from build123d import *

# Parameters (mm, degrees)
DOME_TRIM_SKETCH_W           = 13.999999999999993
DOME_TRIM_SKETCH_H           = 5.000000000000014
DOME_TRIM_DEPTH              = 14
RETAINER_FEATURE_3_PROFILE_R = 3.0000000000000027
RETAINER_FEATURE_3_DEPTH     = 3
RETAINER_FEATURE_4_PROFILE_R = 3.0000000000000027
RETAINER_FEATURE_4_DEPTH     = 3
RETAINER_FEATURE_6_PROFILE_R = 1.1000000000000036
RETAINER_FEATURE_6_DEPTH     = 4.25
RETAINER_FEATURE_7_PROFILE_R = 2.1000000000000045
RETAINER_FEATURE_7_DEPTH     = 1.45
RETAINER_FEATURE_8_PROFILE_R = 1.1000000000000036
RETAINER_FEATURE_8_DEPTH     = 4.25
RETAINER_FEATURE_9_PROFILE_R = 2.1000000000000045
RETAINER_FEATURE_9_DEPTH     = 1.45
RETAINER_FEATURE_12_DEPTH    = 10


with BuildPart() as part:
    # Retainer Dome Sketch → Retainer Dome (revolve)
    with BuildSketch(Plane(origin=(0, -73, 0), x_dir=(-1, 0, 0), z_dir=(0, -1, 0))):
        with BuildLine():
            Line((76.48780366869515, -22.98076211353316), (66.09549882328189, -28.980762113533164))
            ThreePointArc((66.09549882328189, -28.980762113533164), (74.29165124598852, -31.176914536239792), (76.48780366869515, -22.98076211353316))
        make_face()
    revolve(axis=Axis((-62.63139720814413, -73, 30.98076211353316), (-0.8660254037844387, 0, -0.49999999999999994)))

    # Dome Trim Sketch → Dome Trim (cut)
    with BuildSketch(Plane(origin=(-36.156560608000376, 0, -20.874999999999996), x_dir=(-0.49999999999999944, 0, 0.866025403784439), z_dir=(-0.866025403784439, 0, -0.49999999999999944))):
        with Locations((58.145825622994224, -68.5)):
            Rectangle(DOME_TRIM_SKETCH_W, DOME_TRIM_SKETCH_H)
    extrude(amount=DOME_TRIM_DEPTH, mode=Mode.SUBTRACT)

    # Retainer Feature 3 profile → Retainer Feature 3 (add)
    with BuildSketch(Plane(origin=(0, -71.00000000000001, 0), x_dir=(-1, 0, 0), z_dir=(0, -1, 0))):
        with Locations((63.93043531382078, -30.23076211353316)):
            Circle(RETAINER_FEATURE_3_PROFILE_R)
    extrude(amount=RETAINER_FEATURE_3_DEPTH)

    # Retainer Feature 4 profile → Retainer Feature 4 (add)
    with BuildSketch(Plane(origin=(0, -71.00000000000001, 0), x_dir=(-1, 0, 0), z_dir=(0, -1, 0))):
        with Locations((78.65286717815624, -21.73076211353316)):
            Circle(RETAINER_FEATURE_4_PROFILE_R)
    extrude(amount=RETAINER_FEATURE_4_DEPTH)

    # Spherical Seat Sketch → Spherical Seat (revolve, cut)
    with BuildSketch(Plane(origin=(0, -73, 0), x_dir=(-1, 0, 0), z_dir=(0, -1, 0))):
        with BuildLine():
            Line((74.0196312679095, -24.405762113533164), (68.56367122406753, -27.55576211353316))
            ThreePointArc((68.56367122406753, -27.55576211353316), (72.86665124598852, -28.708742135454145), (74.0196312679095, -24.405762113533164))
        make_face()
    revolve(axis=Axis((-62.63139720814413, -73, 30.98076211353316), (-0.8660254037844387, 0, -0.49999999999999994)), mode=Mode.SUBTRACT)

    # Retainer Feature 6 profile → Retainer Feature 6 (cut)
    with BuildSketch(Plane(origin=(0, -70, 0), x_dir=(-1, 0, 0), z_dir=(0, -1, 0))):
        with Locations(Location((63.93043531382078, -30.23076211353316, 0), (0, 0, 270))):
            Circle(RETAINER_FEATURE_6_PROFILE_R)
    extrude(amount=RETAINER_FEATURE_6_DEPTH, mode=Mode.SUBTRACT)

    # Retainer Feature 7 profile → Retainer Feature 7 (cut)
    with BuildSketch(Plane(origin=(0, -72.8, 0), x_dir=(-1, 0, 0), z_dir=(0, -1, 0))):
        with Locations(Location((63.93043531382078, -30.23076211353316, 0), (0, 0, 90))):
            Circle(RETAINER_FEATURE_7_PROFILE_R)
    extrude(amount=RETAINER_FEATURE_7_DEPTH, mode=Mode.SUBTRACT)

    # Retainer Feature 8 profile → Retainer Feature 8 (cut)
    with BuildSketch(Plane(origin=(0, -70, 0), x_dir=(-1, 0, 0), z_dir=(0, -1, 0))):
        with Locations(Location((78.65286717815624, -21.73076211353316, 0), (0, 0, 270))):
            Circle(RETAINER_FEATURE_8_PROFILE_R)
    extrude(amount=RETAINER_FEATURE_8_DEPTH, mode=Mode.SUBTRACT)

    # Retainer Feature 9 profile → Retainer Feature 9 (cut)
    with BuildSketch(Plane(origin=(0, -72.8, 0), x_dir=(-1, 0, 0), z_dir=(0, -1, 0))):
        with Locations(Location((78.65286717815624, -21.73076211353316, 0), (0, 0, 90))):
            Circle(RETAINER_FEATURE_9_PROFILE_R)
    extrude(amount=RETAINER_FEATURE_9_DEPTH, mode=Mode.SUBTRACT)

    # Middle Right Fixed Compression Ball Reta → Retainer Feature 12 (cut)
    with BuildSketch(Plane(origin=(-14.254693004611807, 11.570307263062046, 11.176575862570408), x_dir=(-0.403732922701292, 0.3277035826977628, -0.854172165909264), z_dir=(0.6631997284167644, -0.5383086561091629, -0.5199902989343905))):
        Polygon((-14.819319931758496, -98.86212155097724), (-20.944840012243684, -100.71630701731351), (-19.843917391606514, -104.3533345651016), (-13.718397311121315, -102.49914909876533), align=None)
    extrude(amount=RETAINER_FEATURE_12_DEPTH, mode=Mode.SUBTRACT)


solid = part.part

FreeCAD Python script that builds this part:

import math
import FreeCAD as App
import Part
import Sketcher
from FreeCAD import Vector
Q = App.Units.Quantity


def add_polygon(sketch, points):
    """Adds a closed chain of lines whose ends are joined by coincident constraints."""
    first, n = sketch.GeometryCount, len(points)
    for a, b in zip(points, points[1:] + points[:1]):
        sketch.addGeometry(Part.LineSegment(App.Vector(*a, 0), App.Vector(*b, 0)), False)
    for i in range(n):
        sketch.addConstraint(Sketcher.Constraint("Coincident", first + i, 2, first + (i + 1) % n, 1))

doc = App.newDocument("Part")
body = doc.addObject("PartDesign::Body", "Body")

# Sketch on XZ plane
sketch1 = body.newObject("Sketcher::SketchObject", "Sketch")
sketch1.AttachmentSupport = (doc.getObject("XZ_Plane"), [""])
sketch1.MapMode = "FlatFace"
sketch1.AttachmentOffset = App.Placement(Vector(0, 0, 73), App.Rotation())
sketch1.addGeometry([
    Part.LineSegment(Vector(-76, 23, 0), Vector(-66, 29, 0)),
    Part.ArcOfCircle(Part.Circle(Vector(-71, 26, 0), Vector(0, 0, 1), 6), math.radians(30), math.radians(210)),
], False)
sketch1.addGeometry(Part.LineSegment(Vector(-66, 29, 0), Vector(-76, 23, 0)), True)  # axis
sketch1.addConstraint([
    Sketcher.Constraint("Coincident", 0, 1, 1, 2),
    Sketcher.Constraint("Coincident", 1, 1, 0, 2),
    Sketcher.Constraint("Coincident", 2, 1, 1, 1),
    Sketcher.Constraint("Coincident", 2, 2, 0, 1),
    Sketcher.Constraint("Radius", 1, 6.0),
    Sketcher.Constraint("Angle", 0, Q("30 deg")),
    Sketcher.Constraint("DistanceY", 0, 1, 1, 3, 3.0),
    Sketcher.Constraint("DistanceX", 1, 1, -1, 1, 66.095499),
    Sketcher.Constraint("DistanceY", -1, 1, 1, 3, 25.980762),
])
revolution = body.newObject("PartDesign::Revolution", "Revolution")
revolution.Profile = sketch1
revolution.ReferenceAxis = (sketch1, ["Axis0"])
revolution.Angle = 360

# Sketch on an angled plane
sketch2 = body.newObject("Sketcher::SketchObject", "Sketch001")
sketch2.Placement = App.Placement(Vector(-36.156561, 0, -20.875), App.Rotation(Vector(-0.5, 0, 0.866025404), Vector(0, 1, 0), Vector(-0.866025404, 0, -0.5), "ZXY"))
add_polygon(sketch2, [(51, -66), (51, -71), (65, -71), (65, -66)])  # lines 0-3
sketch2.addConstraint([
    Sketcher.Constraint("Vertical", 0),
    Sketcher.Constraint("Horizontal", 1),
    Sketcher.Constraint("Vertical", 2),
    Sketcher.Constraint("Horizontal", 3),
    Sketcher.Constraint("DistanceX", 1, 1, 1, 2, 14.0),
    Sketcher.Constraint("DistanceY", 0, 2, 0, 1, 5.0),
    Sketcher.Constraint("DistanceY", 0, 2, -1, 1, 71.0),
    Sketcher.Constraint("DistanceX", -1, 1, 0, 2, 51.145826),
])
pocket1 = body.newObject("PartDesign::Pocket", "Pocket")
pocket1.Profile = sketch2
pocket1.Length = 14
pocket1.Reversed = True

# Sketch on XZ plane
sketch3 = body.newObject("Sketcher::SketchObject", "Sketch002")
sketch3.AttachmentSupport = (doc.getObject("XZ_Plane"), [""])
sketch3.MapMode = "FlatFace"
sketch3.AttachmentOffset = App.Placement(Vector(0, 0, 71), App.Rotation())
sketch3.addGeometry(Part.Circle(Vector(-63.9, 30.2, 0), Vector(0, 0, 1), 3), False)
sketch3.addConstraint([
    Sketcher.Constraint("Diameter", 0, 6.0),
    Sketcher.Constraint("DistanceX", 0, 3, -1, 1, 63.930435),
    Sketcher.Constraint("DistanceY", -1, 1, 0, 3, 30.230762),
])
pad1 = body.newObject("PartDesign::Pad", "Pad")
pad1.Profile = sketch3
pad1.Length = 3

# Sketch on XZ plane
sketch4 = body.newObject("Sketcher::SketchObject", "Sketch003")
sketch4.AttachmentSupport = (doc.getObject("XZ_Plane"), [""])
sketch4.MapMode = "FlatFace"
sketch4.AttachmentOffset = App.Placement(Vector(0, 0, 71), App.Rotation())
sketch4.addGeometry(Part.Circle(Vector(-78.7, 21.7, 0), Vector(0, 0, 1), 3), False)
sketch4.addConstraint([
    Sketcher.Constraint("Diameter", 0, 6.0),
    Sketcher.Constraint("DistanceX", 0, 3, -1, 1, 78.652867),
    Sketcher.Constraint("DistanceY", -1, 1, 0, 3, 21.730762),
])
pad2 = body.newObject("PartDesign::Pad", "Pad001")
pad2.Profile = sketch4
pad2.Length = 3

# Sketch on XZ plane
sketch5 = body.newObject("Sketcher::SketchObject", "Sketch004")
sketch5.AttachmentSupport = (doc.getObject("XZ_Plane"), [""])
sketch5.MapMode = "FlatFace"
sketch5.AttachmentOffset = App.Placement(Vector(0, 0, 73), App.Rotation())
sketch5.addGeometry([
    Part.LineSegment(Vector(-74, 24.4, 0), Vector(-68.6, 27.6, 0)),
    Part.ArcOfCircle(Part.Circle(Vector(-71.3, 26, 0), Vector(0, 0, 1), 3.1), math.radians(30), math.radians(210)),
], False)
sketch5.addGeometry(Part.LineSegment(Vector(-68.6, 27.6, 0), Vector(-74, 24.4, 0)), True)  # axis
sketch5.addConstraint([
    Sketcher.Constraint("Coincident", 0, 1, 1, 2),
    Sketcher.Constraint("Coincident", 1, 1, 0, 2),
    Sketcher.Constraint("Coincident", 2, 1, 1, 1),
    Sketcher.Constraint("Coincident", 2, 2, 0, 1),
    Sketcher.Constraint("Angle", 0, Q("30 deg")),
    Sketcher.Constraint("Radius", 1, 3.15),
    Sketcher.Constraint("DistanceY", 0, 1, 1, 3, 1.575),
    Sketcher.Constraint("DistanceX", 1, 3, -1, 1, 71.291651),
    Sketcher.Constraint("DistanceY", -1, 1, 1, 3, 25.980762),
])
groove = body.newObject("PartDesign::Groove", "Groove")
groove.Profile = sketch5
groove.ReferenceAxis = (sketch5, ["Axis0"])
groove.Angle = 360

# Sketch on XZ plane
sketch6 = body.newObject("Sketcher::SketchObject", "Sketch005")
sketch6.AttachmentSupport = (doc.getObject("XZ_Plane"), [""])
sketch6.MapMode = "FlatFace"
sketch6.AttachmentOffset = App.Placement(Vector(0, 0, 70), App.Rotation())
sketch6.addGeometry(Part.Circle(Vector(-63.9, 30.2, 0), Vector(0, 0, 1), 1.1), False)
sketch6.addConstraint([
    Sketcher.Constraint("Diameter", 0, 2.2),
    Sketcher.Constraint("DistanceX", 0, 3, -1, 1, 63.930435),
    Sketcher.Constraint("DistanceY", -1, 1, 0, 3, 30.230762),
])
pocket2 = body.newObject("PartDesign::Pocket", "Pocket001")
pocket2.Profile = sketch6
pocket2.Length = 4.25
pocket2.Reversed = True

# Sketch on XZ plane
sketch7 = body.newObject("Sketcher::SketchObject", "Sketch006")
sketch7.AttachmentSupport = (doc.getObject("XZ_Plane"), [""])
sketch7.MapMode = "FlatFace"
sketch7.AttachmentOffset = App.Placement(Vector(0, 0, 72.8), App.Rotation())
sketch7.addGeometry(Part.Circle(Vector(-63.9, 30.2, 0), Vector(0, 0, 1), 2.1), False)
sketch7.addConstraint([
    Sketcher.Constraint("Diameter", 0, 4.2),
    Sketcher.Constraint("DistanceX", 0, 3, -1, 1, 63.930435),
    Sketcher.Constraint("DistanceY", -1, 1, 0, 3, 30.230762),
])
pocket3 = body.newObject("PartDesign::Pocket", "Pocket002")
pocket3.Profile = sketch7
pocket3.Length = 1.45
pocket3.Reversed = True

# Sketch on XZ plane
sketch8 = body.newObject("Sketcher::SketchObject", "Sketch007")
sketch8.AttachmentSupport = (doc.getObject("XZ_Plane"), [""])
sketch8.MapMode = "FlatFace"
sketch8.AttachmentOffset = App.Placement(Vector(0, 0, 70), App.Rotation())
sketch8.addGeometry(Part.Circle(Vector(-78.7, 21.7, 0), Vector(0, 0, 1), 1.1), False)
sketch8.addConstraint([
    Sketcher.Constraint("Diameter", 0, 2.2),
    Sketcher.Constraint("DistanceX", 0, 3, -1, 1, 78.652867),
    Sketcher.Constraint("DistanceY", -1, 1, 0, 3, 21.730762),
])
pocket4 = body.newObject("PartDesign::Pocket", "Pocket003")
pocket4.Profile = sketch8
pocket4.Length = 4.25
pocket4.Reversed = True

# Sketch on XZ plane
sketch9 = body.newObject("Sketcher::SketchObject", "Sketch008")
sketch9.AttachmentSupport = (doc.getObject("XZ_Plane"), [""])
sketch9.MapMode = "FlatFace"
sketch9.AttachmentOffset = App.Placement(Vector(0, 0, 72.8), App.Rotation())
sketch9.addGeometry(Part.Circle(Vector(-78.7, 21.7, 0), Vector(0, 0, 1), 2.1), False)
sketch9.addConstraint([
    Sketcher.Constraint("Diameter", 0, 4.2),
    Sketcher.Constraint("DistanceX", 0, 3, -1, 1, 78.652867),
    Sketcher.Constraint("DistanceY", -1, 1, 0, 3, 21.730762),
])
pocket5 = body.newObject("PartDesign::Pocket", "Pocket004")
pocket5.Profile = sketch9
pocket5.Length = 1.45
pocket5.Reversed = True

# Sketch on an angled plane
sketch10 = body.newObject("Sketcher::SketchObject", "Sketch009")
sketch10.Placement = App.Placement(Vector(-14.254693, 11.570307, 11.176576), App.Rotation(Vector(-0.403732923, 0.327703583, -0.854172166), Vector(0.630210955, 0.776423952, 0), Vector(0.663199728, -0.538308656, -0.519990299), "ZXY"))
add_polygon(sketch10, [(-14.8, -98.9), (-20.9, -100.7), (-19.8, -104.4), (-13.7, -102.5)])  # lines 0-3
sketch10.addConstraint([
    Sketcher.Constraint("Perpendicular", 0, 1),
    Sketcher.Constraint("Perpendicular", 1, 2),
    Sketcher.Constraint("Perpendicular", 2, 3),
    Sketcher.Constraint("Distance", 0, 6.4),
    Sketcher.Constraint("Distance", 1, 3.8),
    Sketcher.Constraint("DistanceX", 0, 2, -1, 1, 20.94484),
    Sketcher.Constraint("DistanceY", 2, 2, -1, 1, 102.499149),
    Sketcher.Constraint("DistanceX", 3, 2, -1, 1, 14.81932),
])
pocket6 = body.newObject("PartDesign::Pocket", "Pocket005")
pocket6.Profile = sketch10
pocket6.Length = 10
pocket6.Reversed = True

doc.recompute()
